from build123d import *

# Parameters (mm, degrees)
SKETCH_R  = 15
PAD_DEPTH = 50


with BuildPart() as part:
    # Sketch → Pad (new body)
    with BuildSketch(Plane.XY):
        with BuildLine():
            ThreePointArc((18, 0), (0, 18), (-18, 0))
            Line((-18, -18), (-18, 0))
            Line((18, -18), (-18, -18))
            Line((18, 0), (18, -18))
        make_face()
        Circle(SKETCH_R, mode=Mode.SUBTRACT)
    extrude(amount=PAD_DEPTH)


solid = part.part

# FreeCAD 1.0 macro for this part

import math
import FreeCAD as App
import Part
import Sketcher
Q = App.Units.Quantity

doc = App.newDocument("Part")
params = doc.addObject("Spreadsheet::Sheet", "Params")
for row, (alias, value) in enumerate([
    ("sketch1_diameter", "30 mm"),
    ("sketch1_radius", "18 mm"),
    ("sketch1_height", "18 mm"),
    ("pad1_length", "50 mm"),
], start=1):
    params.set(f"A{row}", alias)
    params.set(f"B{row}", "=" + value)
    params.setAlias(f"B{row}", alias)

body = doc.addObject("PartDesign::Body", "Body")

sketch1 = body.newObject("Sketcher::SketchObject", "Sketch")
sketch1.AttachmentSupport = (doc.getObject("XY_Plane"), [""])
sketch1.MapMode = "FlatFace"
sketch1.addGeometry([
    Part.ArcOfCircle(Part.Circle(App.Vector(0, 0, 0), App.Vector(0, 0, 1), 18), math.radians(0), math.radians(180)),
    Part.LineSegment(App.Vector(-18, 0, 0), App.Vector(-18, -18, 0)),
    Part.LineSegment(App.Vector(-18, -18, 0), App.Vector(18, -18, 0)),
    Part.LineSegment(App.Vector(18, -18, 0), App.Vector(18, 0, 0)),
    Part.Circle(App.Vector(0, 0, 0), App.Vector(0, 0, 1), 15),
], False)
sketch1.addConstraint([
    Sketcher.Constraint("Tangent", 0, 2, 1, 1),
    Sketcher.Constraint("Coincident", 1, 2, 2, 1),
    Sketcher.Constraint("Coincident", 2, 2, 3, 1),
    Sketcher.Constraint("Tangent", 3, 2, 0, 1),
    Sketcher.Constraint("Vertical", 1),
    Sketcher.Constraint("Horizontal", 2),
    Sketcher.Constraint("Vertical", 3),
    Sketcher.Constraint("Coincident", 0, 3, -1, 1),
    Sketcher.Constraint("Coincident", 4, 3, -1, 1),
    Sketcher.Constraint("Diameter", 4, Q("30 mm")),
    Sketcher.Constraint("Radius", 0, Q("18 mm")),
    Sketcher.Constraint("DistanceY", 1, 2, 1, 1, Q("18 mm")),
])
sketch1.setExpression("Constraints[9]", "Params.sketch1_diameter")
sketch1.setExpression("Constraints[10]", "Params.sketch1_radius")
sketch1.setExpression("Constraints[11]", "Params.sketch1_height")
pad1 = body.newObject("PartDesign::Pad", "Pad")
pad1.Profile = sketch1
pad1.setExpression("Length", "Params.pad1_length")

doc.recompute()
